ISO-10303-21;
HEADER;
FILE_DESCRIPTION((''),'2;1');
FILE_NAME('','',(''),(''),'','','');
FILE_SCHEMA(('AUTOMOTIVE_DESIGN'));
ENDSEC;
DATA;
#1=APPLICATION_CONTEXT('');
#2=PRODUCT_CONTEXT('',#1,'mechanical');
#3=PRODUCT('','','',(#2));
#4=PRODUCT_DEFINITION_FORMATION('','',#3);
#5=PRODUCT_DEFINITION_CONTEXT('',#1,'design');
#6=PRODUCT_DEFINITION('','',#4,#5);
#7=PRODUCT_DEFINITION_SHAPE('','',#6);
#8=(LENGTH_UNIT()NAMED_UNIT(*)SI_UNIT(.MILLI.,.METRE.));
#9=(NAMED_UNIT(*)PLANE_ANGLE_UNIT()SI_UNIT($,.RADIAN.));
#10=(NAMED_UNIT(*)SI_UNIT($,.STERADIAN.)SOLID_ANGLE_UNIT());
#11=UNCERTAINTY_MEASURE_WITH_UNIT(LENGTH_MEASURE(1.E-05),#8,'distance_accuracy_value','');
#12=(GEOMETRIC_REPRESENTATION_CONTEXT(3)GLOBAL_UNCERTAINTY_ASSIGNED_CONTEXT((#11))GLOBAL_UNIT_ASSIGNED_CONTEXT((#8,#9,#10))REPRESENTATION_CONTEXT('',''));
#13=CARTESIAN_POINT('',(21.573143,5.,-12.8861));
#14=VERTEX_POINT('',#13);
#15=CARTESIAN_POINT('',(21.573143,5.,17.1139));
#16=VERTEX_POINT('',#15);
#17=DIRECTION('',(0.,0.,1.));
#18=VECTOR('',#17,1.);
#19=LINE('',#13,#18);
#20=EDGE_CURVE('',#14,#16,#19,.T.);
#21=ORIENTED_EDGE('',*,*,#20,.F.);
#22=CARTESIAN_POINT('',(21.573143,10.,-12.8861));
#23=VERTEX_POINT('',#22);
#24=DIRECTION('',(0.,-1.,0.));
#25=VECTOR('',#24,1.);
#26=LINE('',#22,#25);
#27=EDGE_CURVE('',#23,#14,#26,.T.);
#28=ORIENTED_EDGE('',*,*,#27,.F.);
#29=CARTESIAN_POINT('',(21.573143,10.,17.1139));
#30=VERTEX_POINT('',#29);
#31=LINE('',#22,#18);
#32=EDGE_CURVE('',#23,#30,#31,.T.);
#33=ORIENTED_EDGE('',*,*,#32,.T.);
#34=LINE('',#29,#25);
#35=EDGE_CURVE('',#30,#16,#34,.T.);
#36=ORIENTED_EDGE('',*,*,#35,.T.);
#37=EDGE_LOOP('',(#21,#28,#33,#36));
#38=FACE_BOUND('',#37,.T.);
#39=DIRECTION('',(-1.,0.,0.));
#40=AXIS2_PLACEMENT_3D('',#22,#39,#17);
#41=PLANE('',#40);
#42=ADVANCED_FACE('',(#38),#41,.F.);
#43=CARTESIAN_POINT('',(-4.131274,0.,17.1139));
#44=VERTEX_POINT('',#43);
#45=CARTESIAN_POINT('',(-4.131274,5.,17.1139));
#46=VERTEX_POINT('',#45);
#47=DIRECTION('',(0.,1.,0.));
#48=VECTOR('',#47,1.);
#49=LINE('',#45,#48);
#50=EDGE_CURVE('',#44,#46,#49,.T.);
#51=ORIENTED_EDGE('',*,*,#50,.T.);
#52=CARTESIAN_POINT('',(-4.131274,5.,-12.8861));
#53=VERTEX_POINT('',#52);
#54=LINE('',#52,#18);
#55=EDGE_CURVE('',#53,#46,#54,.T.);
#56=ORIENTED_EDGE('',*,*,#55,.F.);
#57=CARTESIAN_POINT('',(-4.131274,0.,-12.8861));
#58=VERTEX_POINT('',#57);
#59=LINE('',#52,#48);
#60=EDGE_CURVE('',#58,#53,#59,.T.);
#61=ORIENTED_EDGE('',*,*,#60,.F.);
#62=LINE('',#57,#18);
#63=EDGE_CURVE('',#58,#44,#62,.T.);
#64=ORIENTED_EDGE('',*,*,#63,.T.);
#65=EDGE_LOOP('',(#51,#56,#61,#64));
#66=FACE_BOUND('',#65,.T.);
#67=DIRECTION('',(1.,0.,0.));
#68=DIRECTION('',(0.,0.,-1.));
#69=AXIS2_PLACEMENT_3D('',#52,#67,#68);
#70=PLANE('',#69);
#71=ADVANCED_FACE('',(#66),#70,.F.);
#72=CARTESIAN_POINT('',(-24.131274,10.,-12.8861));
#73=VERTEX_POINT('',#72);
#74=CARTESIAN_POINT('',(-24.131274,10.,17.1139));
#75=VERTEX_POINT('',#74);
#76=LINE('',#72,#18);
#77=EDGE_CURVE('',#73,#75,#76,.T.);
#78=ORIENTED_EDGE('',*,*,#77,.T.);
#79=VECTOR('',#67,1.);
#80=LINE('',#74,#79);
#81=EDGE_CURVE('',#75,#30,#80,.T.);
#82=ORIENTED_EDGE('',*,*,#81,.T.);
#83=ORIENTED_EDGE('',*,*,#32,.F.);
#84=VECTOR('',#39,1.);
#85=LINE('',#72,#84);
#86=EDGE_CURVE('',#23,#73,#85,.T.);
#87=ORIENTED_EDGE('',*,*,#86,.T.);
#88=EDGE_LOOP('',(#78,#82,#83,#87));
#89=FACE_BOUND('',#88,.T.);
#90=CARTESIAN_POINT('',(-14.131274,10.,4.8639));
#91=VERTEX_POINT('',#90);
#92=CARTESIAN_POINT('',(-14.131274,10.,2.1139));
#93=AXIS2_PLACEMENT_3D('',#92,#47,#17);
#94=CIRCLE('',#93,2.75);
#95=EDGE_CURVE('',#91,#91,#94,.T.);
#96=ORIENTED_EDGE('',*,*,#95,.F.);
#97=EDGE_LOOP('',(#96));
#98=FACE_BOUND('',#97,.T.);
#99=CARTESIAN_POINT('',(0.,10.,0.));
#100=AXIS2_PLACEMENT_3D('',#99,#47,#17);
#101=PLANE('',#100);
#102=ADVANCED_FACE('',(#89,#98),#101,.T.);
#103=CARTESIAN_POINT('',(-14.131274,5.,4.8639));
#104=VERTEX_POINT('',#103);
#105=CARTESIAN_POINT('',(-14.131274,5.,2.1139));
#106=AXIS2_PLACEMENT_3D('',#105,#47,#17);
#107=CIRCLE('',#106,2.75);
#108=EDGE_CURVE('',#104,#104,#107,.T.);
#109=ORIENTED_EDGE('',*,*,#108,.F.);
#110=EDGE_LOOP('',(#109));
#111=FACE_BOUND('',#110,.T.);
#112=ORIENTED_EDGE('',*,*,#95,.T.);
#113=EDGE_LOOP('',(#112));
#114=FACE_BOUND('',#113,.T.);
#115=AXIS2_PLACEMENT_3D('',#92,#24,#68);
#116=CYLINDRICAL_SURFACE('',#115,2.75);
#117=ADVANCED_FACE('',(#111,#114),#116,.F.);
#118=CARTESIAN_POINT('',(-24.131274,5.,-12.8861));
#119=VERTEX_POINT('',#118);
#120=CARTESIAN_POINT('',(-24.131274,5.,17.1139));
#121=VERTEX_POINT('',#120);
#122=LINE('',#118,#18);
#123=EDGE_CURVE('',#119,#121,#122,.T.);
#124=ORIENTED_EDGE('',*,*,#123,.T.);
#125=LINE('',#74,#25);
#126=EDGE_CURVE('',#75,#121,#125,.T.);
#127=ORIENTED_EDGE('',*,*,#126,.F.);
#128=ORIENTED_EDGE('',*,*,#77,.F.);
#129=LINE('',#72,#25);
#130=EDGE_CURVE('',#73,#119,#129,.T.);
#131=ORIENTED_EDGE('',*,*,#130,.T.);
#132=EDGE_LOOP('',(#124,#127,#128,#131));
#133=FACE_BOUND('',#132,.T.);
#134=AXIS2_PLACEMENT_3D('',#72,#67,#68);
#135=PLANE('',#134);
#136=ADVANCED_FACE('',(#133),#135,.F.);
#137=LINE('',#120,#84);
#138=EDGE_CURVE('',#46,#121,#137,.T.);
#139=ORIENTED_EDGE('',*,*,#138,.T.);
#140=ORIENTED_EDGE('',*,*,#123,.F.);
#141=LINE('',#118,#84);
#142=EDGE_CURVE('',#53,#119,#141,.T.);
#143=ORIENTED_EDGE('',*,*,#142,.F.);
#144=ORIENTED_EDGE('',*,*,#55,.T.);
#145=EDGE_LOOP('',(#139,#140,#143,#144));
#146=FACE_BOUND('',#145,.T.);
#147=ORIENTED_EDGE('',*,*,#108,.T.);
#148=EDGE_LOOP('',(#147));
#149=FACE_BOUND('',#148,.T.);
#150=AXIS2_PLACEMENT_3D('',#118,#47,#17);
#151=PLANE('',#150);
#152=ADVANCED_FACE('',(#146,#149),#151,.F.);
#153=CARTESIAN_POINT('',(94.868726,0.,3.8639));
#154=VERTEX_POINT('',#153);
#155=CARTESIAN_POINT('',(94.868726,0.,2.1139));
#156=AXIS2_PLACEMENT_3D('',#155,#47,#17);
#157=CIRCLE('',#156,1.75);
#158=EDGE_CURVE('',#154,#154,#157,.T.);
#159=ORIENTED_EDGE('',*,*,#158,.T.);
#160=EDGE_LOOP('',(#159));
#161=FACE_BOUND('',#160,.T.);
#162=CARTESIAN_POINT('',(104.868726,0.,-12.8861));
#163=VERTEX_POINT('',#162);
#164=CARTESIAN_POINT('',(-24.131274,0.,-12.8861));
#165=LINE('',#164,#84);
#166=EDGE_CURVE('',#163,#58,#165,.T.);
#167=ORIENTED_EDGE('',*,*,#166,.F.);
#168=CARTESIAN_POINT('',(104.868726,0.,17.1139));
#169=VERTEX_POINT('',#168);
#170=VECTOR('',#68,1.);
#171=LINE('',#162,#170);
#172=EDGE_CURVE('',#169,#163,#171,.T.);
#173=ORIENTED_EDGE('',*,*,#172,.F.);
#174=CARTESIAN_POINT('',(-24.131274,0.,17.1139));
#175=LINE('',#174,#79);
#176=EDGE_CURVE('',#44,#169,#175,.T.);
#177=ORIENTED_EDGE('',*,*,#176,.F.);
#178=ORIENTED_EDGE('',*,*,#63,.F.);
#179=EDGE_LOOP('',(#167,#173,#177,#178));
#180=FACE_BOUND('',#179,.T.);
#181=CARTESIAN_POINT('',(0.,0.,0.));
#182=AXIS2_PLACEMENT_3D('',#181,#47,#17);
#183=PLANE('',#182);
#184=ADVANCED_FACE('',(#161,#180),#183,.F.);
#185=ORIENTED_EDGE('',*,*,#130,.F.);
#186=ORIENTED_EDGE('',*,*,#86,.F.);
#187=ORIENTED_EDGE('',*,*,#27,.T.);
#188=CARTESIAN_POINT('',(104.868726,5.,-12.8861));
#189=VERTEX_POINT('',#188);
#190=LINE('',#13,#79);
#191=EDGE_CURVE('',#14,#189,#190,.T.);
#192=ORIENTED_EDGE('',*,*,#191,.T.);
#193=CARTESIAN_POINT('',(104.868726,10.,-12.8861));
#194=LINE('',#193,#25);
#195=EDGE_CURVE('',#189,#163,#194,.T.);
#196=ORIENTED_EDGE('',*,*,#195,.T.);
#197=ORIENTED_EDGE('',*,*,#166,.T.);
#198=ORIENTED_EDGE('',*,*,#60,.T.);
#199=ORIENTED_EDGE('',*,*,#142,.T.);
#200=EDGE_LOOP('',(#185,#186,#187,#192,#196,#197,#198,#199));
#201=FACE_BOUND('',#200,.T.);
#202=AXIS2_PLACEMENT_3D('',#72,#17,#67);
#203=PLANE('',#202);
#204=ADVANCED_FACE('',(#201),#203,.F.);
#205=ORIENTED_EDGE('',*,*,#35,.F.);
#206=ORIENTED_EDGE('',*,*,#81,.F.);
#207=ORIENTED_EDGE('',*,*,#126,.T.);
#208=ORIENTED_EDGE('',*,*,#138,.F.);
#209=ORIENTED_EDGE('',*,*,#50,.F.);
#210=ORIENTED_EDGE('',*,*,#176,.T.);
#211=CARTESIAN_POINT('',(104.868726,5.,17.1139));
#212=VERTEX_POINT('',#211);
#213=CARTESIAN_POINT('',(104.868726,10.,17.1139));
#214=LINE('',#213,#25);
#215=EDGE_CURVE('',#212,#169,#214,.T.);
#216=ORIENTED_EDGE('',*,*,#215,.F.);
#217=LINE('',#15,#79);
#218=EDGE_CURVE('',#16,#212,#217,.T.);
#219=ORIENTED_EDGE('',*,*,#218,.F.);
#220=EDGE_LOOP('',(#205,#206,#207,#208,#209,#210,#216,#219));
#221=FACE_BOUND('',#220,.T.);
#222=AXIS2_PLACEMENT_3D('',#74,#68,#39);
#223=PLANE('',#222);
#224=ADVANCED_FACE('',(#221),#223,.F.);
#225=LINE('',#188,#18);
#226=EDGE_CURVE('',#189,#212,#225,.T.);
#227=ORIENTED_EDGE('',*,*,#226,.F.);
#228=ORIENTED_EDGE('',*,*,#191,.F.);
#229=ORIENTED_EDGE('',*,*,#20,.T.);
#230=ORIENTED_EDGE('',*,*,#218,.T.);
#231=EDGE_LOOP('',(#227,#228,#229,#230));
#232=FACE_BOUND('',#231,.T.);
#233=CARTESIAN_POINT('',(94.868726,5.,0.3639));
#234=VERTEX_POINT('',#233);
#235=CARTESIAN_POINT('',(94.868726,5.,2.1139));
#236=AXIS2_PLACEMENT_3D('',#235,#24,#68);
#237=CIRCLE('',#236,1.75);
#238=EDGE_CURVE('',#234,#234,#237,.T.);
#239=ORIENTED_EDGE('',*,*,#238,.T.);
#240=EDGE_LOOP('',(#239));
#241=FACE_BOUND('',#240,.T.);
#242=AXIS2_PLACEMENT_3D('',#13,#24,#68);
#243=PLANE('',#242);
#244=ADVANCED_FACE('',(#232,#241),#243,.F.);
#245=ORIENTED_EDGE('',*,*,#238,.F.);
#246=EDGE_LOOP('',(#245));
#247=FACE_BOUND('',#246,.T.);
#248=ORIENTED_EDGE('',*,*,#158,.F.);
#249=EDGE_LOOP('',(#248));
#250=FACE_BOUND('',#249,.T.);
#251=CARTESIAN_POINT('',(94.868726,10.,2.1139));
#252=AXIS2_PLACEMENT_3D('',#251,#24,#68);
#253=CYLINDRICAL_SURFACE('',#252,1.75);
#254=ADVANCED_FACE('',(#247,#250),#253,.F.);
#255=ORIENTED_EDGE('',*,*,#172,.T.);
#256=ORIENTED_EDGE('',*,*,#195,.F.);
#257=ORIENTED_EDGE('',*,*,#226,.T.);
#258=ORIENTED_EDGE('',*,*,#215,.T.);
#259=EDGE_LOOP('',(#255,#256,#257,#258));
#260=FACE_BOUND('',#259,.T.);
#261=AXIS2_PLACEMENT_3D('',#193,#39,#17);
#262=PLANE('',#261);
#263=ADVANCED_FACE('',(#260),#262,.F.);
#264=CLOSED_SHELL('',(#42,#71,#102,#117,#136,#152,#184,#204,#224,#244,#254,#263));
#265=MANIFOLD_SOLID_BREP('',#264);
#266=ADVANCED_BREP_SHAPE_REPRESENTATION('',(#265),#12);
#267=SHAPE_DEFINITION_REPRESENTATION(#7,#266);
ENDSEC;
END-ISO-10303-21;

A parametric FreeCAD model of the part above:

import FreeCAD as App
import Part
import Sketcher

V = App.Vector
Q = App.Units.Quantity


def add_polygon(sketch, points):
    """Adds a closed chain of lines whose ends are joined by coincident constraints."""
    first, n = sketch.GeometryCount, len(points)
    for a, b in zip(points, points[1:] + points[:1]):
        sketch.addGeometry(Part.LineSegment(App.Vector(*a, 0), App.Vector(*b, 0)), False)
    for i in range(n):
        sketch.addConstraint(Sketcher.Constraint("Coincident", first + i, 2, first + (i + 1) % n, 1))

doc = App.newDocument("Part")
body = doc.addObject("PartDesign::Body", "Body")

# Sketch on XZ plane
sketch1 = body.newObject("Sketcher::SketchObject", "Sketch")
sketch1.AttachmentSupport = (doc.getObject("XZ_Plane"), [""])
sketch1.MapMode = "FlatFace"
add_polygon(sketch1, [(-24.1, -12.9), (-24.1, 17.1), (104.9, 17.1), (104.9, -12.9)])  # lines 0-3
sketch1.addGeometry(Part.Circle(V(-14.1, 2.1, 0), V(0, 0, 1), 2.8), False)  # 4
sketch1.addGeometry(Part.Circle(V(94.9, 2.1, 0), V(0, 0, 1), 1.8), False)  # 5
sketch1.addConstraint(Sketcher.Constraint("Vertical", 0))
sketch1.addConstraint(Sketcher.Constraint("Horizontal", 1))
sketch1.addConstraint(Sketcher.Constraint("Vertical", 2))
sketch1.addConstraint(Sketcher.Constraint("Horizontal", 3))
sketch1.addConstraint(Sketcher.Constraint("Horizontal", 4, 3, 5, 3))
sketch1.addConstraint(Sketcher.Constraint("Diameter", 4, Q("5.5 mm")))
sketch1.addConstraint(Sketcher.Constraint("Diameter", 5, Q("3.5 mm")))
sketch1.addConstraint(Sketcher.Constraint("DistanceX", 1, 1, 1, 2, Q("129 mm")))
sketch1.addConstraint(Sketcher.Constraint("DistanceY", 0, 1, 0, 2, Q("30 mm")))
sketch1.addConstraint(Sketcher.Constraint("DistanceX", 4, 3, 5, 3, Q("109 mm")))
sketch1.addConstraint(Sketcher.Constraint("DistanceX", 0, 2, 4, 3, Q("10 mm")))
sketch1.addConstraint(Sketcher.Constraint("DistanceY", 4, 3, 0, 2, Q("15 mm")))
sketch1.addConstraint(Sketcher.Constraint("DistanceY", -1, 1, 4, 3, Q("2.1139 mm")))
sketch1.addConstraint(Sketcher.Constraint("DistanceX", 4, 3, -1, 1, Q("14.131274 mm")))
pad1 = body.newObject("PartDesign::Pad", "Pad")
pad1.Profile = sketch1
pad1.Length = 10
pad1.Reversed = True

# Sketch on XY plane
sketch2 = body.newObject("Sketcher::SketchObject", "Sketch001")
sketch2.AttachmentSupport = (doc.getObject("XY_Plane"), [""])
sketch2.MapMode = "FlatFace"
sketch2.AttachmentOffset = App.Placement(V(0, 0, 17.1139), App.Rotation())
add_polygon(sketch2, [(-24, 5), (-24, 0), (-4, 0), (-4, 5)])  # lines 0-3
add_polygon(sketch2, [(22, 10), (22, 5), (105, 5), (105, 10)])  # lines 4-7
sketch2.addConstraint(Sketcher.Constraint("Vertical", 0))
sketch2.addConstraint(Sketcher.Constraint("Horizontal", 1))
sketch2.addConstraint(Sketcher.Constraint("Vertical", 2))
sketch2.addConstraint(Sketcher.Constraint("Horizontal", 3))
sketch2.addConstraint(Sketcher.Constraint("Vertical", 4))
sketch2.addConstraint(Sketcher.Constraint("Horizontal", 5))
sketch2.addConstraint(Sketcher.Constraint("Vertical", 6))
sketch2.addConstraint(Sketcher.Constraint("Horizontal", 7))
sketch2.addConstraint(Sketcher.Constraint("PointOnObject", 0, 2, -1))
sketch2.addConstraint(Sketcher.Constraint("Horizontal", 3, 2, 4, 2))
sketch2.addConstraint(Sketcher.Constraint("Equal", 2, 4))
sketch2.addConstraint(Sketcher.Constraint("DistanceX", 1, 1, 1, 2, Q("20 mm")))
sketch2.addConstraint(Sketcher.Constraint("DistanceY", 0, 2, 0, 1, Q("5 mm")))
sketch2.addConstraint(Sketcher.Constraint("DistanceX", 2, 2, 5, 2, Q("109 mm")))
sketch2.addConstraint(Sketcher.Constraint("DistanceX", 5, 1, 5, 2, Q("83.295583 mm")))
sketch2.addConstraint(Sketcher.Constraint("DistanceX", 0, 2, -1, 1, Q("24.131274 mm")))
pocket1 = body.newObject("PartDesign::Pocket", "Pocket")
pocket1.Profile = sketch2
pocket1.Type = "ThroughAll"

doc.recompute()
